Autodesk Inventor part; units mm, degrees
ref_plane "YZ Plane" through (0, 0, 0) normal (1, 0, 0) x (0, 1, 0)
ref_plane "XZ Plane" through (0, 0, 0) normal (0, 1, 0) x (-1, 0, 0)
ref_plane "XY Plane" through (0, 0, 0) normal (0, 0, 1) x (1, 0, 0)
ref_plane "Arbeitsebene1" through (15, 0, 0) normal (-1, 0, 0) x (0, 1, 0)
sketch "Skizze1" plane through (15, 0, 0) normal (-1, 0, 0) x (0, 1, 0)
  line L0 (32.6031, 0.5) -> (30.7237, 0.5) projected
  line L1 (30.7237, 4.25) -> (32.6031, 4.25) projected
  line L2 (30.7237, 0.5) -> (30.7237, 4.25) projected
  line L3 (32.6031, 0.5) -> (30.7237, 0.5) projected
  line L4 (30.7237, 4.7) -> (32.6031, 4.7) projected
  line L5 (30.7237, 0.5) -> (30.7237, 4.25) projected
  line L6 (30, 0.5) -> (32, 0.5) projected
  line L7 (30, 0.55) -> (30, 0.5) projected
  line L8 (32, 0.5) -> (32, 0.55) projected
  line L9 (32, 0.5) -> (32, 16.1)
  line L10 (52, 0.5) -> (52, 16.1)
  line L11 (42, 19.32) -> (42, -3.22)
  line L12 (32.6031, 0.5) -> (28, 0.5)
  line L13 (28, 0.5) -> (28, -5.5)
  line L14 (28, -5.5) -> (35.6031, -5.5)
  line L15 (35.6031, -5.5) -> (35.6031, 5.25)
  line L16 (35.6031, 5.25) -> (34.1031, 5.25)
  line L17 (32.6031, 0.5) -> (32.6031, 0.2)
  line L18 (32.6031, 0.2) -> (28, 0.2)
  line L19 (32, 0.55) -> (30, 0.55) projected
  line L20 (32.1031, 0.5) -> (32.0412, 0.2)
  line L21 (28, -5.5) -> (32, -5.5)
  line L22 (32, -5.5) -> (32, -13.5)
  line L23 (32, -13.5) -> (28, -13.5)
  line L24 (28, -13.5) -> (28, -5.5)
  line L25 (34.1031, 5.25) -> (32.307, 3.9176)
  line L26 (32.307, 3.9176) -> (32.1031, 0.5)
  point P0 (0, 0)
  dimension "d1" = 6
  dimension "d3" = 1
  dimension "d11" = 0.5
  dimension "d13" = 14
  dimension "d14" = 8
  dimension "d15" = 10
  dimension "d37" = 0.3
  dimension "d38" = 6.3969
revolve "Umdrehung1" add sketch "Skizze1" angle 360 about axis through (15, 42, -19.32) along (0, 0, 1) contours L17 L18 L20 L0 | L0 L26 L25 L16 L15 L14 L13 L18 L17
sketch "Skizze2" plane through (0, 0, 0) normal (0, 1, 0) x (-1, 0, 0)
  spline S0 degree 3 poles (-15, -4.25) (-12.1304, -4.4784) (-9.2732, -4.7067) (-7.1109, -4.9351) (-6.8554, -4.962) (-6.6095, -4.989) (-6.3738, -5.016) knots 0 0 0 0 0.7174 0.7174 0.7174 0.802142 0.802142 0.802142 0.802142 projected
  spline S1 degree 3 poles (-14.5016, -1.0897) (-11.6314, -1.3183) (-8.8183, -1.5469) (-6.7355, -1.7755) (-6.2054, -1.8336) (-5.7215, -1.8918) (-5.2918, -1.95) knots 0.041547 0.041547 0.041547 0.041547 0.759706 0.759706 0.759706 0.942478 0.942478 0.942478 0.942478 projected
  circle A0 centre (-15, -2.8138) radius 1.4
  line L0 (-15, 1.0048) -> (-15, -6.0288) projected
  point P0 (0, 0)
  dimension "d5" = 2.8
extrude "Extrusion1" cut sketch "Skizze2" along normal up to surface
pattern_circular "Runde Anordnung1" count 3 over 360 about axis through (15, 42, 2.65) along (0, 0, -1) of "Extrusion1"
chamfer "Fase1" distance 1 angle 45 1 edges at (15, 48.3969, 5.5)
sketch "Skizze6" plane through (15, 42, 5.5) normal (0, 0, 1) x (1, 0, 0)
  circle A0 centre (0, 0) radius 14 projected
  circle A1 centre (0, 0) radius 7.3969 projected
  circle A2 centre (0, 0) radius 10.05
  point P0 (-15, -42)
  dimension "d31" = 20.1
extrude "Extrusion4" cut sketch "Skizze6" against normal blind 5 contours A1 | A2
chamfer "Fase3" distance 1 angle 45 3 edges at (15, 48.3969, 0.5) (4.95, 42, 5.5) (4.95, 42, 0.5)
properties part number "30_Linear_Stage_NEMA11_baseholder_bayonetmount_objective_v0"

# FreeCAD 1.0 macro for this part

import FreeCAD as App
import Part
import Sketcher
Q = App.Units.Quantity


def edges_at(feature, points):
    """Names of the edges that pass closest to the given points."""
    edges = feature.Shape.Edges
    near = lambda p: min(range(len(edges)), key=lambda i: edges[i].distToShape(Part.Vertex(*p))[0])
    return sorted({f"Edge{near(p) + 1}" for p in points})


def add_polygon(sketch, points):
    """Adds a closed chain of lines whose ends are joined by coincident constraints."""
    first, n = sketch.GeometryCount, len(points)
    for a, b in zip(points, points[1:] + points[:1]):
        sketch.addGeometry(Part.LineSegment(App.Vector(*a, 0), App.Vector(*b, 0)), False)
    for i in range(n):
        sketch.addConstraint(Sketcher.Constraint("Coincident", first + i, 2, first + (i + 1) % n, 1))

doc = App.newDocument("Part")
body = doc.addObject("PartDesign::Body", "Body")

# Sketch on YZ plane
sketch1 = body.newObject("Sketcher::SketchObject", "Sketch")
sketch1.AttachmentSupport = (doc.getObject("YZ_Plane"), [""])
sketch1.MapMode = "FlatFace"
sketch1.AttachmentOffset = App.Placement(App.Vector(0, 0, 15), App.Rotation())
add_polygon(sketch1, [(32.1, -0.5), (32.04, -0.2), (28, -0.2), (28, 5.5), (35.6, 5.5), (35.6, -5.25), (34.1, -5.25), (32.31, -3.92)])  # lines 0-7
sketch1.addGeometry(Part.LineSegment(App.Vector(42, -5.25, 0), App.Vector(42, 5.5, 0)), True)  # axis
sketch1.addConstraint(Sketcher.Constraint("Horizontal", 1))
sketch1.addConstraint(Sketcher.Constraint("Vertical", 2))
sketch1.addConstraint(Sketcher.Constraint("Horizontal", 3))
sketch1.addConstraint(Sketcher.Constraint("Vertical", 4))
sketch1.addConstraint(Sketcher.Constraint("Horizontal", 5))
sketch1.addConstraint(Sketcher.Constraint("Vertical", 8))
sketch1.addConstraint(Sketcher.Constraint("Horizontal", 5, 2, 8, 1))
sketch1.addConstraint(Sketcher.Constraint("Horizontal", 3, 2, 8, 2))
sketch1.addConstraint(Sketcher.Constraint("DistanceY", 7, 2, 8, 2, 6.0))
sketch1.addConstraint(Sketcher.Constraint("DistanceY", 7, 2, -1, 1, 0.5))
sketch1.addConstraint(Sketcher.Constraint("DistanceY", 7, 2, 0, 2, 0.3))
sketch1.addConstraint(Sketcher.Constraint("DistanceX", 5, 2, 5, 1, 1.5))
sketch1.addConstraint(Sketcher.Constraint("DistanceX", -1, 1, 1, 2, 28.0))
sketch1.addConstraint(Sketcher.Constraint("DistanceX", -1, 1, 8, 1, 42.0))
sketch1.addConstraint(Sketcher.Constraint("DistanceX", 7, 2, 5, 2, 2.0))
sketch1.addConstraint(Sketcher.Constraint("DistanceX", 4, 2, 8, 1, 6.397))
sketch1.addConstraint(Sketcher.Constraint("DistanceY", 4, 2, 4, 1, 10.75))
sketch1.addConstraint(Sketcher.Constraint("Angle", 6, Q("143.431 deg")))
sketch1.addConstraint(Sketcher.Constraint("DistanceX", 1, 2, 1, 1, 4.0412))
sketch1.addConstraint(Sketcher.Constraint("DistanceX", -1, 1, 6, 2, 32.307))
revolution = body.newObject("PartDesign::Revolution", "Revolution")
revolution.Profile = sketch1
revolution.ReferenceAxis = (sketch1, ["Axis0"])
revolution.Angle = 360

# Sketch on XZ plane
sketch2 = body.newObject("Sketcher::SketchObject", "Sketch001")
sketch2.AttachmentSupport = (doc.getObject("XZ_Plane"), [""])
sketch2.MapMode = "FlatFace"
sketch2.addGeometry(Part.Circle(App.Vector(15, -2.8, 0), App.Vector(0, 0, 1), 1.4), False)
sketch2.addConstraint(Sketcher.Constraint("Diameter", 0, 2.8))
sketch2.addConstraint(Sketcher.Constraint("DistanceX", -1, 1, 0, 3, 15.0))
sketch2.addConstraint(Sketcher.Constraint("DistanceY", 0, 3, -1, 1, 2.8138))
pocket1 = body.newObject("PartDesign::Pocket", "Pocket")
pocket1.Profile = sketch2
pocket1.Length = 35.7582
doc.recompute()

datumline = body.newObject("PartDesign::Line", "DatumLine")
datumline.Placement = App.Placement(App.Vector(15, 42, 0), App.Rotation(App.Vector(0, 0, 1), App.Vector(0, 0, 1)))
polarpattern = body.newObject("PartDesign::PolarPattern", "PolarPattern")
polarpattern.Originals = [pocket1]
polarpattern.Axis = (datumline, [""])
polarpattern.Angle = 360
polarpattern.Occurrences = 3
body.Tip = polarpattern
doc.recompute()

chamfer = body.newObject("PartDesign::Chamfer", "Chamfer")
chamfer.Base = (polarpattern, edges_at(polarpattern, [(15, 48.397, 5.5)]))
chamfer.Size = 1

# Sketch on XY plane
sketch3 = body.newObject("Sketcher::SketchObject", "Sketch002")
sketch3.AttachmentSupport = (doc.getObject("XY_Plane"), [""])
sketch3.MapMode = "FlatFace"
sketch3.AttachmentOffset = App.Placement(App.Vector(0, 0, 5.5), App.Rotation())
sketch3.addGeometry(Part.Circle(App.Vector(15, 42, 0), App.Vector(0, 0, 1), 10), False)
sketch3.addConstraint(Sketcher.Constraint("Diameter", 0, 20.1))
sketch3.addConstraint(Sketcher.Constraint("DistanceX", -1, 1, 0, 3, 15.0))
sketch3.addConstraint(Sketcher.Constraint("DistanceY", -1, 1, 0, 3, 42.0))
pocket2 = body.newObject("PartDesign::Pocket", "Pocket001")
pocket2.Profile = sketch3
pocket2.Length = 5
doc.recompute()

chamfer2 = body.newObject("PartDesign::Chamfer", "Chamfer001")
chamfer2.Base = (pocket2, edges_at(pocket2, [(15, 48.397, 0.5), (4.95, 42, 5.5), (4.95, 42, 0.5)]))
chamfer2.Size = 1

doc.recompute()
